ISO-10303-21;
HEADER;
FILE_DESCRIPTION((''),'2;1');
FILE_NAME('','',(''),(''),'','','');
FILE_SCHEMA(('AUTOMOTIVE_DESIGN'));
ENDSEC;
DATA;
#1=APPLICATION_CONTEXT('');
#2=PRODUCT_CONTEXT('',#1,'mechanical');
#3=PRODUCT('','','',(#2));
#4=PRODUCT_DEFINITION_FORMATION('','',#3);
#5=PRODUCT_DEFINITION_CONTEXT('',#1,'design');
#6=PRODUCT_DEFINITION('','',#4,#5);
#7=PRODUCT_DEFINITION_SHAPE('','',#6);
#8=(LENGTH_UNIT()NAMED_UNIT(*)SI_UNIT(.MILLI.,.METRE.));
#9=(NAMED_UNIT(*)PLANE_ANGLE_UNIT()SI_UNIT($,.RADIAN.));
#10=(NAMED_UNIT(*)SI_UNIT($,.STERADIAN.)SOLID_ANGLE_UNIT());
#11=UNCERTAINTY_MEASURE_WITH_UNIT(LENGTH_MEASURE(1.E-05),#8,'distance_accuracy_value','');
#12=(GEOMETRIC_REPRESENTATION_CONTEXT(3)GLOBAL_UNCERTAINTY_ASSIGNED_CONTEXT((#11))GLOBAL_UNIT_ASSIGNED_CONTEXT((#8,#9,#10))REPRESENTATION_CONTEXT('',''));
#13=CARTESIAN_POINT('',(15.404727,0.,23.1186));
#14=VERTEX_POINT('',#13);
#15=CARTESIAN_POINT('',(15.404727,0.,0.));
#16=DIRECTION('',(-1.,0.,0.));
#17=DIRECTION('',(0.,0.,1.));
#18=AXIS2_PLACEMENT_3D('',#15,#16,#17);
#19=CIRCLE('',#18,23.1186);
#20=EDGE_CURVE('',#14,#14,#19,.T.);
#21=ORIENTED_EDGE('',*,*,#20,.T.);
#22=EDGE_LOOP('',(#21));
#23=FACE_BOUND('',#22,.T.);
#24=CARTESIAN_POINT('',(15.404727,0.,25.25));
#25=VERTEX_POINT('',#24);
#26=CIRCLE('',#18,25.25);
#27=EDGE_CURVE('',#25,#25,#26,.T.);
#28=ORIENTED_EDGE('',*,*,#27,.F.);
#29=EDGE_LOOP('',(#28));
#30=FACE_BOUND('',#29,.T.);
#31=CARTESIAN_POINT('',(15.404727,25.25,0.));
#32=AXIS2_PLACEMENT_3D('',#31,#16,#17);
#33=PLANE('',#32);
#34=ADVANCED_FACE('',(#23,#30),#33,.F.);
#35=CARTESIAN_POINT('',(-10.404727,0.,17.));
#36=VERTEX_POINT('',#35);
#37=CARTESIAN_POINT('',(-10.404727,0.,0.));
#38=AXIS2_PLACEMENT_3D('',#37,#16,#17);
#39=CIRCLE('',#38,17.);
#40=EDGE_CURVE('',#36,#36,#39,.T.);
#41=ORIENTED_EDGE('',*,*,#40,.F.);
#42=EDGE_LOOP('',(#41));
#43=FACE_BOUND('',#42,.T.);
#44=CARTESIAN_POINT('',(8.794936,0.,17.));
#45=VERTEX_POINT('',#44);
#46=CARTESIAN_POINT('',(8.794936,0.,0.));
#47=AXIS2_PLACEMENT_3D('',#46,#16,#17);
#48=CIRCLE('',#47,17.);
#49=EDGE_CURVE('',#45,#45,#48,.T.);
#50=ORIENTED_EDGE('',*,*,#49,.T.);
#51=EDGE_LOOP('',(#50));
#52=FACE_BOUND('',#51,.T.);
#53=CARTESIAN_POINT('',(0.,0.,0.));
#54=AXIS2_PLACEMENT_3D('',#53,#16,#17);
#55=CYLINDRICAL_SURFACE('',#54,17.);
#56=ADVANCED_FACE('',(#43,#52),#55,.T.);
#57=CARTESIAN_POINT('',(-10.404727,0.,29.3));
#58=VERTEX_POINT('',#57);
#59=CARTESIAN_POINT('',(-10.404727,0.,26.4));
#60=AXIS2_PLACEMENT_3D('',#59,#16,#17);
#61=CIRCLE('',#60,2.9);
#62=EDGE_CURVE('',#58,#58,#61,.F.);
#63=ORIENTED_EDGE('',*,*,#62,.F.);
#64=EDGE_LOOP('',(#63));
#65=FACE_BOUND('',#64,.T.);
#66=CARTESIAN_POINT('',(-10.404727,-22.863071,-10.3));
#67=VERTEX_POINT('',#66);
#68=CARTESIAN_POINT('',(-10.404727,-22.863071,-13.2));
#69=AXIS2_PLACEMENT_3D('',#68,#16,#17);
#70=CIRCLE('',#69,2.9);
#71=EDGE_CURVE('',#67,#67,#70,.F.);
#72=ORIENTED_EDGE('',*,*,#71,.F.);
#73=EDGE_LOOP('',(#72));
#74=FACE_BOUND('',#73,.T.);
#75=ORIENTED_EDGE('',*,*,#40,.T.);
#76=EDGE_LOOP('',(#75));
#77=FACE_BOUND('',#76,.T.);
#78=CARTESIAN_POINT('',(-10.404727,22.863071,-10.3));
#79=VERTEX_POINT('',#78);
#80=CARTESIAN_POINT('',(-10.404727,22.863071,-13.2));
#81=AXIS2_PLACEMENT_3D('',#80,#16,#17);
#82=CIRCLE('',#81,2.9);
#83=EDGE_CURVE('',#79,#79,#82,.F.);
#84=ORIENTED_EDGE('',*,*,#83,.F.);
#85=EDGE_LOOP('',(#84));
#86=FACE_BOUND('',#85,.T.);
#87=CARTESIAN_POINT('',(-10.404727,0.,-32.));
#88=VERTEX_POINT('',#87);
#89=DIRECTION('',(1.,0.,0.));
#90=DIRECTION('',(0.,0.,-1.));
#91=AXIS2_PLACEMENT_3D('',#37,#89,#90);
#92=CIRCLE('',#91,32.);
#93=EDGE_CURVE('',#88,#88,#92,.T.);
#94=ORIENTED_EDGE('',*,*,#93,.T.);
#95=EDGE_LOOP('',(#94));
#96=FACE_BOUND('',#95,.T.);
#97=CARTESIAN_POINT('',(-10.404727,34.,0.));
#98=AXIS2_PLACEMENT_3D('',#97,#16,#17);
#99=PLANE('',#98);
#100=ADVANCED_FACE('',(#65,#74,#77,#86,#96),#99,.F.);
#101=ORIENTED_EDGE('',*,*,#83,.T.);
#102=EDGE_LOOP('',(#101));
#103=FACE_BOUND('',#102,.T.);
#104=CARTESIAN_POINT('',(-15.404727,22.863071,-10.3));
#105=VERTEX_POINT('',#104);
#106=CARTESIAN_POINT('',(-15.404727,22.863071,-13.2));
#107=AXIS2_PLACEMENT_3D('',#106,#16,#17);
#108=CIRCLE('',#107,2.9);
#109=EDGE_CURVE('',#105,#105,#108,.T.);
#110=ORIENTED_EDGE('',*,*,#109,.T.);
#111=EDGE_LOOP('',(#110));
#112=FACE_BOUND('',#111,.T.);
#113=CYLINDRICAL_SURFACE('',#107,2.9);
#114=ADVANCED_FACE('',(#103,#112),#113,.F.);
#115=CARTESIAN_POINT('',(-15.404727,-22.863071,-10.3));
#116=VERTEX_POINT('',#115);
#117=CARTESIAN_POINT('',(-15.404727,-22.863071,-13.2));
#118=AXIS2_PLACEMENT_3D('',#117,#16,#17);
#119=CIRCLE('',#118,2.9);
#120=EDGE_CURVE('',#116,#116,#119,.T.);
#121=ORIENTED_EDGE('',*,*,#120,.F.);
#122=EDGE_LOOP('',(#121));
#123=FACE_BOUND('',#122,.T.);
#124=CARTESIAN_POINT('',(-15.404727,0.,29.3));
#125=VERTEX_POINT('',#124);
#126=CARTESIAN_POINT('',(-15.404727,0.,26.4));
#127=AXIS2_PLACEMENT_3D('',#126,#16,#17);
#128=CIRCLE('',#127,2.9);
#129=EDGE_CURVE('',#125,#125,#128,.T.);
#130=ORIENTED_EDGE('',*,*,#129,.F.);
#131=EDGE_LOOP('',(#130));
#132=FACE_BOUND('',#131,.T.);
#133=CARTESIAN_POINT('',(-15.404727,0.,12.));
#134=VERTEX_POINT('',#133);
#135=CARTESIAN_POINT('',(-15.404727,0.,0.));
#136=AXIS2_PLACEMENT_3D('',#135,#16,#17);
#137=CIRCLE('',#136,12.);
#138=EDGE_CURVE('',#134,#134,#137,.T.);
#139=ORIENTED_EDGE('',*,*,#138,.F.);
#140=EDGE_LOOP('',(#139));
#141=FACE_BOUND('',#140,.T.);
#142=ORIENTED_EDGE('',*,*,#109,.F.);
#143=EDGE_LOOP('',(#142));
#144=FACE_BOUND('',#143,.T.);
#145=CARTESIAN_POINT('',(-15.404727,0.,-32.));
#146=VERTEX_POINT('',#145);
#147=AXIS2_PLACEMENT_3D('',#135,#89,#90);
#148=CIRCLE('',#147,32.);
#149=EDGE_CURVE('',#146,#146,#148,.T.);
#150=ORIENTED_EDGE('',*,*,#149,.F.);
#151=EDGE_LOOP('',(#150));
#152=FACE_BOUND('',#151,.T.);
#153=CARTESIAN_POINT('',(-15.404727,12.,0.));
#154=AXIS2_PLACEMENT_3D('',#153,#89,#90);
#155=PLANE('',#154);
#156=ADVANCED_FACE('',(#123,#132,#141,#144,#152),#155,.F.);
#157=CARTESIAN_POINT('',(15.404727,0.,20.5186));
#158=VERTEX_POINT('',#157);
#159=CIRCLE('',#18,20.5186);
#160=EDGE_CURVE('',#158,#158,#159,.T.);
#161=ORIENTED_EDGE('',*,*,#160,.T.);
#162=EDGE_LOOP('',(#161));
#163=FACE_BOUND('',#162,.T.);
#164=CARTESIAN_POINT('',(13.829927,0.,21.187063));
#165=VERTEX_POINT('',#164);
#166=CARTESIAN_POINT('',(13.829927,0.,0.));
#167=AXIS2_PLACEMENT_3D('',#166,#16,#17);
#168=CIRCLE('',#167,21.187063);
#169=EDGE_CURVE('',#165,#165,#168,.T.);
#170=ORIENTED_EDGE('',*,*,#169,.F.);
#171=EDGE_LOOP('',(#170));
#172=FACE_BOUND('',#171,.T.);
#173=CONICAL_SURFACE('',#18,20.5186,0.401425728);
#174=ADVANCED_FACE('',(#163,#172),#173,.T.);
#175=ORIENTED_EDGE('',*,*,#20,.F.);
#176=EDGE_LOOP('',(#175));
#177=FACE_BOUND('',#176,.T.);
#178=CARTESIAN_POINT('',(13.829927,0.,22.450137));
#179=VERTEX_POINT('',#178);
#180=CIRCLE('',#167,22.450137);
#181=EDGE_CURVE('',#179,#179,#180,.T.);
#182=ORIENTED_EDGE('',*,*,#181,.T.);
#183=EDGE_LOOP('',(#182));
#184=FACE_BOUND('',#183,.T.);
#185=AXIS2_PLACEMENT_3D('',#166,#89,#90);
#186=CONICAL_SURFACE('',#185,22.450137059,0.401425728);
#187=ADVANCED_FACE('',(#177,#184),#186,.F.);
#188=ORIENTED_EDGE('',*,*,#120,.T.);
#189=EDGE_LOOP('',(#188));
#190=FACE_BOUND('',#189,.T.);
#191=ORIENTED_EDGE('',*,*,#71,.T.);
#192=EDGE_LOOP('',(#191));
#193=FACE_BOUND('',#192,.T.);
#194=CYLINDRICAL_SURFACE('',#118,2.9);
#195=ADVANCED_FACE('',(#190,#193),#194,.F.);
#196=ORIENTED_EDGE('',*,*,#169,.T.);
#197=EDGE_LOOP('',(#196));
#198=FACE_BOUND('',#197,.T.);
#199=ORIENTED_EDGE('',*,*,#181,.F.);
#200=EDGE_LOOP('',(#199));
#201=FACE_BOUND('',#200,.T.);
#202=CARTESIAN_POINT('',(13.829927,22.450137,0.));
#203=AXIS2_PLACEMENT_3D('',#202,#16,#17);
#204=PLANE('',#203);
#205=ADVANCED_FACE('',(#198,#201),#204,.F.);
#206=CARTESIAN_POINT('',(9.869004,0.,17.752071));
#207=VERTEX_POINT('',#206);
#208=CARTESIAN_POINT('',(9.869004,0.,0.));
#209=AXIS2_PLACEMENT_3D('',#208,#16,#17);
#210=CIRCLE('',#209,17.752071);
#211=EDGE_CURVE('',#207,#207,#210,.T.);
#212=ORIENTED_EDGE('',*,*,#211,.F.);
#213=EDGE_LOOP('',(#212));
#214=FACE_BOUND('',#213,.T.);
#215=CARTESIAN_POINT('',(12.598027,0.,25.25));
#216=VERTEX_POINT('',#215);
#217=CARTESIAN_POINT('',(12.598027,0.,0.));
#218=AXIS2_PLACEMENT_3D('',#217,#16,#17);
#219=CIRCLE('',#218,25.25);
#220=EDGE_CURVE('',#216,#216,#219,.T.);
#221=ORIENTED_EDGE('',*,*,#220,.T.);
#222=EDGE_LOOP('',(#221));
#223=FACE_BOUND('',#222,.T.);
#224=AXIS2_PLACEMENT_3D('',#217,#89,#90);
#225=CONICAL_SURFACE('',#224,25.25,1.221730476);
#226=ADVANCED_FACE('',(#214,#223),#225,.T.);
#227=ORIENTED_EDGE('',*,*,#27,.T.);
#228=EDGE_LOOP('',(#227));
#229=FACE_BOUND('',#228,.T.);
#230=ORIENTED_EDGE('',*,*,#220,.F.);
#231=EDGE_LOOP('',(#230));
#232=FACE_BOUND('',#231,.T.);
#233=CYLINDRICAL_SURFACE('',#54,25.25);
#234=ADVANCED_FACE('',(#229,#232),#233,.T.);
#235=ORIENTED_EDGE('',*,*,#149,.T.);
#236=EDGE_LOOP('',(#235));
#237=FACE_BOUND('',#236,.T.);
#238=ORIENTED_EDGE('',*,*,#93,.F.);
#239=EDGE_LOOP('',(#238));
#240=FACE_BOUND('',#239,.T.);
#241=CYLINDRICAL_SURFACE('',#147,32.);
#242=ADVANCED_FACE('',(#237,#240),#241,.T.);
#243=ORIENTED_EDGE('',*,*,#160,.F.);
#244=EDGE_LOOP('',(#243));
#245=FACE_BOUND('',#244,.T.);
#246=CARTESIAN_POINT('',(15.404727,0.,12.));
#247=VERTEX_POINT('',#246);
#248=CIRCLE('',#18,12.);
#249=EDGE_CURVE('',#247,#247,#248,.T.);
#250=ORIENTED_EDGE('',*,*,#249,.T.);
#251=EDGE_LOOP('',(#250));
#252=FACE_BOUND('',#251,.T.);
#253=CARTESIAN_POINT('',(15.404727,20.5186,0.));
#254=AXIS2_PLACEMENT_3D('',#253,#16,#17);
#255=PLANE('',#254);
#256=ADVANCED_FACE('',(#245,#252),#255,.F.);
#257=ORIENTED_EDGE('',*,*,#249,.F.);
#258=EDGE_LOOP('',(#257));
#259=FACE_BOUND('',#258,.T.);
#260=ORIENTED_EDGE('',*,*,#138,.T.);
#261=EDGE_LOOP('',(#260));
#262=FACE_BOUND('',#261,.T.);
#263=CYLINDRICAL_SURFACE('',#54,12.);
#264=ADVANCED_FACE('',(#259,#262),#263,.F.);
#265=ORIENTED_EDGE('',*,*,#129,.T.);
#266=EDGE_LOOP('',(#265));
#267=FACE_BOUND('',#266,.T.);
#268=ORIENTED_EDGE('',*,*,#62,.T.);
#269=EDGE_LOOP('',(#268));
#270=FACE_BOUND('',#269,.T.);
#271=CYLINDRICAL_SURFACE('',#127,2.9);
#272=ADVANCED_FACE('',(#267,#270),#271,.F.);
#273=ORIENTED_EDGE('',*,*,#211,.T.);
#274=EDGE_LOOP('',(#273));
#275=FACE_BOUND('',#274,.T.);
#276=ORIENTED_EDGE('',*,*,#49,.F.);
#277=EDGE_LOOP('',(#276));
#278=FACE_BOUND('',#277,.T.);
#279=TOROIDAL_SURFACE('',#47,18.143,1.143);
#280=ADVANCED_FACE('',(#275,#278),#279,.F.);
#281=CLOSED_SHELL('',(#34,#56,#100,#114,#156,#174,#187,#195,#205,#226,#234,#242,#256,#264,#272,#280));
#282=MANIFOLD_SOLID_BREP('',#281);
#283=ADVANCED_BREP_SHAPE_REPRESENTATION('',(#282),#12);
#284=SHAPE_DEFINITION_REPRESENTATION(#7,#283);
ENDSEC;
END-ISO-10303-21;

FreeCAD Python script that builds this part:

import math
import FreeCAD as App
import Part
import Sketcher
Q = App.Units.Quantity

doc = App.newDocument("Part")
body = doc.addObject("PartDesign::Body", "Body")

# Sketch on XY plane
sketch1 = doc.addObject("Sketcher::SketchObject", "Sketch")
body.addObject(sketch1)
sketch1.AttachmentSupport = (doc.XY_Plane, [""])
sketch1.MapMode = "FlatFace"
sketch1.addGeometry(Part.LineSegment(App.Vector(-15.404727, 34, 0), App.Vector(-15.404727, 12, 0)), False)
sketch1.addGeometry(Part.LineSegment(App.Vector(-15.404727, 12, 0), App.Vector(15.404727, 12, 0)), False)
sketch1.addGeometry(Part.LineSegment(App.Vector(15.404727, 12, 0), App.Vector(15.404727, 20.5186, 0)), False)
sketch1.addGeometry(Part.LineSegment(App.Vector(15.404727, 20.5186, 0), App.Vector(13.829927, 21.187063, 0)), False)
sketch1.addGeometry(Part.LineSegment(App.Vector(13.829927, 21.187063, 0), App.Vector(13.829927, 22.450137, 0)), False)
sketch1.addGeometry(Part.LineSegment(App.Vector(13.829927, 22.450137, 0), App.Vector(15.404727, 23.1186, 0)), False)
sketch1.addGeometry(Part.LineSegment(App.Vector(15.404727, 23.1186, 0), App.Vector(15.404727, 25.25, 0)), False)
sketch1.addGeometry(Part.LineSegment(App.Vector(15.404727, 25.25, 0), App.Vector(12.598027, 25.25, 0)), False)
sketch1.addGeometry(Part.LineSegment(App.Vector(12.598027, 25.25, 0), App.Vector(9.869004, 17.752071, 0)), False)
sketch1.addGeometry(Part.ArcOfCircle(Part.Circle(App.Vector(8.794936, 18.143, 0), App.Vector(0, 0, 1), 1.143), math.radians(-90), math.radians(-20)), False)
sketch1.addGeometry(Part.LineSegment(App.Vector(8.794936, 17, 0), App.Vector(-10.404727, 17, 0)), False)
sketch1.addGeometry(Part.LineSegment(App.Vector(-10.404727, 17, 0), App.Vector(-10.404727, 34, 0)), False)
sketch1.addGeometry(Part.LineSegment(App.Vector(-10.404727, 34, 0), App.Vector(-15.404727, 34, 0)), False)
sketch1.addConstraint(Sketcher.Constraint("Coincident", 0, 2, 1, 1))
sketch1.addConstraint(Sketcher.Constraint("Coincident", 1, 2, 2, 1))
sketch1.addConstraint(Sketcher.Constraint("Coincident", 2, 2, 3, 1))
sketch1.addConstraint(Sketcher.Constraint("Coincident", 3, 2, 4, 1))
sketch1.addConstraint(Sketcher.Constraint("Coincident", 4, 2, 5, 1))
sketch1.addConstraint(Sketcher.Constraint("Coincident", 5, 2, 6, 1))
sketch1.addConstraint(Sketcher.Constraint("Coincident", 6, 2, 7, 1))
sketch1.addConstraint(Sketcher.Constraint("Coincident", 7, 2, 8, 1))
sketch1.addConstraint(Sketcher.Constraint("Tangent", 8, 2, 9, 2))
sketch1.addConstraint(Sketcher.Constraint("Tangent", 9, 1, 10, 1))
sketch1.addConstraint(Sketcher.Constraint("Coincident", 10, 2, 11, 1))
sketch1.addConstraint(Sketcher.Constraint("Coincident", 11, 2, 12, 1))
sketch1.addConstraint(Sketcher.Constraint("Coincident", 12, 2, 0, 1))
sketch1.addConstraint(Sketcher.Constraint("Vertical", 0))
sketch1.addConstraint(Sketcher.Constraint("Horizontal", 1))
sketch1.addConstraint(Sketcher.Constraint("Vertical", 2))
sketch1.addConstraint(Sketcher.Constraint("Vertical", 4))
sketch1.addConstraint(Sketcher.Constraint("Vertical", 6))
sketch1.addConstraint(Sketcher.Constraint("Horizontal", 7))
sketch1.addConstraint(Sketcher.Constraint("Horizontal", 10))
sketch1.addConstraint(Sketcher.Constraint("Vertical", 11))
sketch1.addConstraint(Sketcher.Constraint("Horizontal", 12))
sketch1.addConstraint(Sketcher.Constraint("Vertical", 2, 2, 5, 2))
sketch1.addConstraint(Sketcher.Constraint("Equal", 3, 5))
sketch1.addConstraint(Sketcher.Constraint("DistanceX", 12, 2, 12, 1, Q("5 mm")))
sketch1.addConstraint(Sketcher.Constraint("DistanceY", 0, 2, 0, 1, Q("22 mm")))
sketch1.addConstraint(Sketcher.Constraint("DistanceY", 11, 1, 11, 2, Q("17 mm")))
sketch1.addConstraint(Sketcher.Constraint("Angle", 3, Q("157 deg")))
sketch1.addConstraint(Sketcher.Constraint("Angle", 8, Q("-110 deg")))
sketch1.addConstraint(Sketcher.Constraint("DistanceY", -1, 1, 0, 2, Q("12 mm")))
sketch1.addConstraint(Sketcher.Constraint("Radius", 9, Q("1.143 mm")))
sketch1.addConstraint(Sketcher.Constraint("DistanceY", 2, 2, 5, 2, Q("2.6 mm")))
sketch1.addConstraint(Sketcher.Constraint("DistanceY", -1, 1, 6, 2, Q("25.25 mm")))
sketch1.addConstraint(Sketcher.Constraint("DistanceX", 7, 2, 7, 1, Q("2.8067 mm")))
sketch1.addConstraint(Sketcher.Constraint("DistanceY", 2, 1, 2, 2, Q("8.5186 mm")))
sketch1.addConstraint(Sketcher.Constraint("Distance", 3, Q("1.7108 mm")))
sketch1.addConstraint(Sketcher.Constraint("DistanceX", 1, 1, 1, 2, Q("30.809454 mm")))
sketch1.addConstraint(Sketcher.Constraint("DistanceX", -1, 1, 9, 3, Q("8.794936 mm")))
revolution = doc.addObject("PartDesign::Revolution", "Revolution")
body.addObject(revolution)
revolution.Profile = sketch1
revolution.ReferenceAxis = (sketch1, ["H_Axis"])
revolution.Angle = 360

# Sketch on YZ plane
sketch2 = doc.addObject("Sketcher::SketchObject", "Sketch001")
body.addObject(sketch2)
sketch2.AttachmentSupport = (doc.YZ_Plane, [""])
sketch2.MapMode = "FlatFace"
sketch2.AttachmentOffset = App.Placement(App.Vector(0, 0, -15.404727), App.Rotation())
sketch2.addGeometry(Part.Circle(App.Vector(-22.863071, -13.2, 0), App.Vector(0, 0, 1), 2.9), False)
sketch2.addConstraint(Sketcher.Constraint("Diameter", 0, Q("5.8 mm")))
sketch2.addConstraint(Sketcher.Constraint("DistanceY", 0, 3, -1, 1, Q("13.2 mm")))
sketch2.addConstraint(Sketcher.Constraint("DistanceX", 0, 3, -1, 1, Q("22.863071 mm")))
pocket1 = doc.addObject("PartDesign::Pocket", "Pocket")
body.addObject(pocket1)
pocket1.Profile = sketch2
pocket1.Type = "UpToFirst"
pocket1.Reversed = True

# Sketch on YZ plane
sketch3 = doc.addObject("Sketcher::SketchObject", "Sketch002")
body.addObject(sketch3)
sketch3.AttachmentSupport = (doc.YZ_Plane, [""])
sketch3.MapMode = "FlatFace"
sketch3.AttachmentOffset = App.Placement(App.Vector(0, 0, -15.404727), App.Rotation())
sketch3.addGeometry(Part.Circle(App.Vector(22.863071, -13.2, 0), App.Vector(0, 0, 1), 2.9), False)
sketch3.addConstraint(Sketcher.Constraint("Diameter", 0, Q("5.8 mm")))
sketch3.addConstraint(Sketcher.Constraint("DistanceY", 0, 3, -1, 1, Q("13.2 mm")))
sketch3.addConstraint(Sketcher.Constraint("DistanceX", -1, 1, 0, 3, Q("22.863071 mm")))
pocket2 = doc.addObject("PartDesign::Pocket", "Pocket001")
body.addObject(pocket2)
pocket2.Profile = sketch3
pocket2.Type = "UpToFirst"
pocket2.Reversed = True

# Sketch on YZ plane
sketch4 = doc.addObject("Sketcher::SketchObject", "Sketch003")
body.addObject(sketch4)
sketch4.AttachmentSupport = (doc.YZ_Plane, [""])
sketch4.MapMode = "FlatFace"
sketch4.AttachmentOffset = App.Placement(App.Vector(0, 0, -15.404727), App.Rotation())
sketch4.addGeometry(Part.Circle(App.Vector(0, 26.4, 0), App.Vector(0, 0, 1), 2.9), False)
sketch4.addConstraint(Sketcher.Constraint("PointOnObject", 0, 3, -2))
sketch4.addConstraint(Sketcher.Constraint("Diameter", 0, Q("5.8 mm")))
sketch4.addConstraint(Sketcher.Constraint("DistanceY", -1, 1, 0, 3, Q("26.4 mm")))
pocket3 = doc.addObject("PartDesign::Pocket", "Pocket002")
body.addObject(pocket3)
pocket3.Profile = sketch4
pocket3.Type = "UpToFirst"
pocket3.Reversed = True

# Sketch on YZ plane
sketch5 = doc.addObject("Sketcher::SketchObject", "Sketch004")
body.addObject(sketch5)
sketch5.AttachmentSupport = (doc.YZ_Plane, [""])
sketch5.MapMode = "FlatFace"
sketch5.AttachmentOffset = App.Placement(App.Vector(0, 0, -10.404727), App.Rotation())
sketch5.addGeometry(Part.Circle(App.Vector(0, 0, 0), App.Vector(0, 0, 1), 42), False)
sketch5.addGeometry(Part.Circle(App.Vector(0, 0, 0), App.Vector(0, 0, 1), 32), False)
sketch5.addConstraint(Sketcher.Constraint("Coincident", 0, 3, -1, 1))
sketch5.addConstraint(Sketcher.Constraint("Coincident", 1, 3, -1, 1))
sketch5.addConstraint(Sketcher.Constraint("Diameter", 0, Q("84 mm")))
sketch5.addConstraint(Sketcher.Constraint("Diameter", 1, Q("64 mm")))
pocket4 = doc.addObject("PartDesign::Pocket", "Pocket003")
body.addObject(pocket4)
pocket4.Profile = sketch5
pocket4.Type = "ThroughAll"

doc.recompute()
